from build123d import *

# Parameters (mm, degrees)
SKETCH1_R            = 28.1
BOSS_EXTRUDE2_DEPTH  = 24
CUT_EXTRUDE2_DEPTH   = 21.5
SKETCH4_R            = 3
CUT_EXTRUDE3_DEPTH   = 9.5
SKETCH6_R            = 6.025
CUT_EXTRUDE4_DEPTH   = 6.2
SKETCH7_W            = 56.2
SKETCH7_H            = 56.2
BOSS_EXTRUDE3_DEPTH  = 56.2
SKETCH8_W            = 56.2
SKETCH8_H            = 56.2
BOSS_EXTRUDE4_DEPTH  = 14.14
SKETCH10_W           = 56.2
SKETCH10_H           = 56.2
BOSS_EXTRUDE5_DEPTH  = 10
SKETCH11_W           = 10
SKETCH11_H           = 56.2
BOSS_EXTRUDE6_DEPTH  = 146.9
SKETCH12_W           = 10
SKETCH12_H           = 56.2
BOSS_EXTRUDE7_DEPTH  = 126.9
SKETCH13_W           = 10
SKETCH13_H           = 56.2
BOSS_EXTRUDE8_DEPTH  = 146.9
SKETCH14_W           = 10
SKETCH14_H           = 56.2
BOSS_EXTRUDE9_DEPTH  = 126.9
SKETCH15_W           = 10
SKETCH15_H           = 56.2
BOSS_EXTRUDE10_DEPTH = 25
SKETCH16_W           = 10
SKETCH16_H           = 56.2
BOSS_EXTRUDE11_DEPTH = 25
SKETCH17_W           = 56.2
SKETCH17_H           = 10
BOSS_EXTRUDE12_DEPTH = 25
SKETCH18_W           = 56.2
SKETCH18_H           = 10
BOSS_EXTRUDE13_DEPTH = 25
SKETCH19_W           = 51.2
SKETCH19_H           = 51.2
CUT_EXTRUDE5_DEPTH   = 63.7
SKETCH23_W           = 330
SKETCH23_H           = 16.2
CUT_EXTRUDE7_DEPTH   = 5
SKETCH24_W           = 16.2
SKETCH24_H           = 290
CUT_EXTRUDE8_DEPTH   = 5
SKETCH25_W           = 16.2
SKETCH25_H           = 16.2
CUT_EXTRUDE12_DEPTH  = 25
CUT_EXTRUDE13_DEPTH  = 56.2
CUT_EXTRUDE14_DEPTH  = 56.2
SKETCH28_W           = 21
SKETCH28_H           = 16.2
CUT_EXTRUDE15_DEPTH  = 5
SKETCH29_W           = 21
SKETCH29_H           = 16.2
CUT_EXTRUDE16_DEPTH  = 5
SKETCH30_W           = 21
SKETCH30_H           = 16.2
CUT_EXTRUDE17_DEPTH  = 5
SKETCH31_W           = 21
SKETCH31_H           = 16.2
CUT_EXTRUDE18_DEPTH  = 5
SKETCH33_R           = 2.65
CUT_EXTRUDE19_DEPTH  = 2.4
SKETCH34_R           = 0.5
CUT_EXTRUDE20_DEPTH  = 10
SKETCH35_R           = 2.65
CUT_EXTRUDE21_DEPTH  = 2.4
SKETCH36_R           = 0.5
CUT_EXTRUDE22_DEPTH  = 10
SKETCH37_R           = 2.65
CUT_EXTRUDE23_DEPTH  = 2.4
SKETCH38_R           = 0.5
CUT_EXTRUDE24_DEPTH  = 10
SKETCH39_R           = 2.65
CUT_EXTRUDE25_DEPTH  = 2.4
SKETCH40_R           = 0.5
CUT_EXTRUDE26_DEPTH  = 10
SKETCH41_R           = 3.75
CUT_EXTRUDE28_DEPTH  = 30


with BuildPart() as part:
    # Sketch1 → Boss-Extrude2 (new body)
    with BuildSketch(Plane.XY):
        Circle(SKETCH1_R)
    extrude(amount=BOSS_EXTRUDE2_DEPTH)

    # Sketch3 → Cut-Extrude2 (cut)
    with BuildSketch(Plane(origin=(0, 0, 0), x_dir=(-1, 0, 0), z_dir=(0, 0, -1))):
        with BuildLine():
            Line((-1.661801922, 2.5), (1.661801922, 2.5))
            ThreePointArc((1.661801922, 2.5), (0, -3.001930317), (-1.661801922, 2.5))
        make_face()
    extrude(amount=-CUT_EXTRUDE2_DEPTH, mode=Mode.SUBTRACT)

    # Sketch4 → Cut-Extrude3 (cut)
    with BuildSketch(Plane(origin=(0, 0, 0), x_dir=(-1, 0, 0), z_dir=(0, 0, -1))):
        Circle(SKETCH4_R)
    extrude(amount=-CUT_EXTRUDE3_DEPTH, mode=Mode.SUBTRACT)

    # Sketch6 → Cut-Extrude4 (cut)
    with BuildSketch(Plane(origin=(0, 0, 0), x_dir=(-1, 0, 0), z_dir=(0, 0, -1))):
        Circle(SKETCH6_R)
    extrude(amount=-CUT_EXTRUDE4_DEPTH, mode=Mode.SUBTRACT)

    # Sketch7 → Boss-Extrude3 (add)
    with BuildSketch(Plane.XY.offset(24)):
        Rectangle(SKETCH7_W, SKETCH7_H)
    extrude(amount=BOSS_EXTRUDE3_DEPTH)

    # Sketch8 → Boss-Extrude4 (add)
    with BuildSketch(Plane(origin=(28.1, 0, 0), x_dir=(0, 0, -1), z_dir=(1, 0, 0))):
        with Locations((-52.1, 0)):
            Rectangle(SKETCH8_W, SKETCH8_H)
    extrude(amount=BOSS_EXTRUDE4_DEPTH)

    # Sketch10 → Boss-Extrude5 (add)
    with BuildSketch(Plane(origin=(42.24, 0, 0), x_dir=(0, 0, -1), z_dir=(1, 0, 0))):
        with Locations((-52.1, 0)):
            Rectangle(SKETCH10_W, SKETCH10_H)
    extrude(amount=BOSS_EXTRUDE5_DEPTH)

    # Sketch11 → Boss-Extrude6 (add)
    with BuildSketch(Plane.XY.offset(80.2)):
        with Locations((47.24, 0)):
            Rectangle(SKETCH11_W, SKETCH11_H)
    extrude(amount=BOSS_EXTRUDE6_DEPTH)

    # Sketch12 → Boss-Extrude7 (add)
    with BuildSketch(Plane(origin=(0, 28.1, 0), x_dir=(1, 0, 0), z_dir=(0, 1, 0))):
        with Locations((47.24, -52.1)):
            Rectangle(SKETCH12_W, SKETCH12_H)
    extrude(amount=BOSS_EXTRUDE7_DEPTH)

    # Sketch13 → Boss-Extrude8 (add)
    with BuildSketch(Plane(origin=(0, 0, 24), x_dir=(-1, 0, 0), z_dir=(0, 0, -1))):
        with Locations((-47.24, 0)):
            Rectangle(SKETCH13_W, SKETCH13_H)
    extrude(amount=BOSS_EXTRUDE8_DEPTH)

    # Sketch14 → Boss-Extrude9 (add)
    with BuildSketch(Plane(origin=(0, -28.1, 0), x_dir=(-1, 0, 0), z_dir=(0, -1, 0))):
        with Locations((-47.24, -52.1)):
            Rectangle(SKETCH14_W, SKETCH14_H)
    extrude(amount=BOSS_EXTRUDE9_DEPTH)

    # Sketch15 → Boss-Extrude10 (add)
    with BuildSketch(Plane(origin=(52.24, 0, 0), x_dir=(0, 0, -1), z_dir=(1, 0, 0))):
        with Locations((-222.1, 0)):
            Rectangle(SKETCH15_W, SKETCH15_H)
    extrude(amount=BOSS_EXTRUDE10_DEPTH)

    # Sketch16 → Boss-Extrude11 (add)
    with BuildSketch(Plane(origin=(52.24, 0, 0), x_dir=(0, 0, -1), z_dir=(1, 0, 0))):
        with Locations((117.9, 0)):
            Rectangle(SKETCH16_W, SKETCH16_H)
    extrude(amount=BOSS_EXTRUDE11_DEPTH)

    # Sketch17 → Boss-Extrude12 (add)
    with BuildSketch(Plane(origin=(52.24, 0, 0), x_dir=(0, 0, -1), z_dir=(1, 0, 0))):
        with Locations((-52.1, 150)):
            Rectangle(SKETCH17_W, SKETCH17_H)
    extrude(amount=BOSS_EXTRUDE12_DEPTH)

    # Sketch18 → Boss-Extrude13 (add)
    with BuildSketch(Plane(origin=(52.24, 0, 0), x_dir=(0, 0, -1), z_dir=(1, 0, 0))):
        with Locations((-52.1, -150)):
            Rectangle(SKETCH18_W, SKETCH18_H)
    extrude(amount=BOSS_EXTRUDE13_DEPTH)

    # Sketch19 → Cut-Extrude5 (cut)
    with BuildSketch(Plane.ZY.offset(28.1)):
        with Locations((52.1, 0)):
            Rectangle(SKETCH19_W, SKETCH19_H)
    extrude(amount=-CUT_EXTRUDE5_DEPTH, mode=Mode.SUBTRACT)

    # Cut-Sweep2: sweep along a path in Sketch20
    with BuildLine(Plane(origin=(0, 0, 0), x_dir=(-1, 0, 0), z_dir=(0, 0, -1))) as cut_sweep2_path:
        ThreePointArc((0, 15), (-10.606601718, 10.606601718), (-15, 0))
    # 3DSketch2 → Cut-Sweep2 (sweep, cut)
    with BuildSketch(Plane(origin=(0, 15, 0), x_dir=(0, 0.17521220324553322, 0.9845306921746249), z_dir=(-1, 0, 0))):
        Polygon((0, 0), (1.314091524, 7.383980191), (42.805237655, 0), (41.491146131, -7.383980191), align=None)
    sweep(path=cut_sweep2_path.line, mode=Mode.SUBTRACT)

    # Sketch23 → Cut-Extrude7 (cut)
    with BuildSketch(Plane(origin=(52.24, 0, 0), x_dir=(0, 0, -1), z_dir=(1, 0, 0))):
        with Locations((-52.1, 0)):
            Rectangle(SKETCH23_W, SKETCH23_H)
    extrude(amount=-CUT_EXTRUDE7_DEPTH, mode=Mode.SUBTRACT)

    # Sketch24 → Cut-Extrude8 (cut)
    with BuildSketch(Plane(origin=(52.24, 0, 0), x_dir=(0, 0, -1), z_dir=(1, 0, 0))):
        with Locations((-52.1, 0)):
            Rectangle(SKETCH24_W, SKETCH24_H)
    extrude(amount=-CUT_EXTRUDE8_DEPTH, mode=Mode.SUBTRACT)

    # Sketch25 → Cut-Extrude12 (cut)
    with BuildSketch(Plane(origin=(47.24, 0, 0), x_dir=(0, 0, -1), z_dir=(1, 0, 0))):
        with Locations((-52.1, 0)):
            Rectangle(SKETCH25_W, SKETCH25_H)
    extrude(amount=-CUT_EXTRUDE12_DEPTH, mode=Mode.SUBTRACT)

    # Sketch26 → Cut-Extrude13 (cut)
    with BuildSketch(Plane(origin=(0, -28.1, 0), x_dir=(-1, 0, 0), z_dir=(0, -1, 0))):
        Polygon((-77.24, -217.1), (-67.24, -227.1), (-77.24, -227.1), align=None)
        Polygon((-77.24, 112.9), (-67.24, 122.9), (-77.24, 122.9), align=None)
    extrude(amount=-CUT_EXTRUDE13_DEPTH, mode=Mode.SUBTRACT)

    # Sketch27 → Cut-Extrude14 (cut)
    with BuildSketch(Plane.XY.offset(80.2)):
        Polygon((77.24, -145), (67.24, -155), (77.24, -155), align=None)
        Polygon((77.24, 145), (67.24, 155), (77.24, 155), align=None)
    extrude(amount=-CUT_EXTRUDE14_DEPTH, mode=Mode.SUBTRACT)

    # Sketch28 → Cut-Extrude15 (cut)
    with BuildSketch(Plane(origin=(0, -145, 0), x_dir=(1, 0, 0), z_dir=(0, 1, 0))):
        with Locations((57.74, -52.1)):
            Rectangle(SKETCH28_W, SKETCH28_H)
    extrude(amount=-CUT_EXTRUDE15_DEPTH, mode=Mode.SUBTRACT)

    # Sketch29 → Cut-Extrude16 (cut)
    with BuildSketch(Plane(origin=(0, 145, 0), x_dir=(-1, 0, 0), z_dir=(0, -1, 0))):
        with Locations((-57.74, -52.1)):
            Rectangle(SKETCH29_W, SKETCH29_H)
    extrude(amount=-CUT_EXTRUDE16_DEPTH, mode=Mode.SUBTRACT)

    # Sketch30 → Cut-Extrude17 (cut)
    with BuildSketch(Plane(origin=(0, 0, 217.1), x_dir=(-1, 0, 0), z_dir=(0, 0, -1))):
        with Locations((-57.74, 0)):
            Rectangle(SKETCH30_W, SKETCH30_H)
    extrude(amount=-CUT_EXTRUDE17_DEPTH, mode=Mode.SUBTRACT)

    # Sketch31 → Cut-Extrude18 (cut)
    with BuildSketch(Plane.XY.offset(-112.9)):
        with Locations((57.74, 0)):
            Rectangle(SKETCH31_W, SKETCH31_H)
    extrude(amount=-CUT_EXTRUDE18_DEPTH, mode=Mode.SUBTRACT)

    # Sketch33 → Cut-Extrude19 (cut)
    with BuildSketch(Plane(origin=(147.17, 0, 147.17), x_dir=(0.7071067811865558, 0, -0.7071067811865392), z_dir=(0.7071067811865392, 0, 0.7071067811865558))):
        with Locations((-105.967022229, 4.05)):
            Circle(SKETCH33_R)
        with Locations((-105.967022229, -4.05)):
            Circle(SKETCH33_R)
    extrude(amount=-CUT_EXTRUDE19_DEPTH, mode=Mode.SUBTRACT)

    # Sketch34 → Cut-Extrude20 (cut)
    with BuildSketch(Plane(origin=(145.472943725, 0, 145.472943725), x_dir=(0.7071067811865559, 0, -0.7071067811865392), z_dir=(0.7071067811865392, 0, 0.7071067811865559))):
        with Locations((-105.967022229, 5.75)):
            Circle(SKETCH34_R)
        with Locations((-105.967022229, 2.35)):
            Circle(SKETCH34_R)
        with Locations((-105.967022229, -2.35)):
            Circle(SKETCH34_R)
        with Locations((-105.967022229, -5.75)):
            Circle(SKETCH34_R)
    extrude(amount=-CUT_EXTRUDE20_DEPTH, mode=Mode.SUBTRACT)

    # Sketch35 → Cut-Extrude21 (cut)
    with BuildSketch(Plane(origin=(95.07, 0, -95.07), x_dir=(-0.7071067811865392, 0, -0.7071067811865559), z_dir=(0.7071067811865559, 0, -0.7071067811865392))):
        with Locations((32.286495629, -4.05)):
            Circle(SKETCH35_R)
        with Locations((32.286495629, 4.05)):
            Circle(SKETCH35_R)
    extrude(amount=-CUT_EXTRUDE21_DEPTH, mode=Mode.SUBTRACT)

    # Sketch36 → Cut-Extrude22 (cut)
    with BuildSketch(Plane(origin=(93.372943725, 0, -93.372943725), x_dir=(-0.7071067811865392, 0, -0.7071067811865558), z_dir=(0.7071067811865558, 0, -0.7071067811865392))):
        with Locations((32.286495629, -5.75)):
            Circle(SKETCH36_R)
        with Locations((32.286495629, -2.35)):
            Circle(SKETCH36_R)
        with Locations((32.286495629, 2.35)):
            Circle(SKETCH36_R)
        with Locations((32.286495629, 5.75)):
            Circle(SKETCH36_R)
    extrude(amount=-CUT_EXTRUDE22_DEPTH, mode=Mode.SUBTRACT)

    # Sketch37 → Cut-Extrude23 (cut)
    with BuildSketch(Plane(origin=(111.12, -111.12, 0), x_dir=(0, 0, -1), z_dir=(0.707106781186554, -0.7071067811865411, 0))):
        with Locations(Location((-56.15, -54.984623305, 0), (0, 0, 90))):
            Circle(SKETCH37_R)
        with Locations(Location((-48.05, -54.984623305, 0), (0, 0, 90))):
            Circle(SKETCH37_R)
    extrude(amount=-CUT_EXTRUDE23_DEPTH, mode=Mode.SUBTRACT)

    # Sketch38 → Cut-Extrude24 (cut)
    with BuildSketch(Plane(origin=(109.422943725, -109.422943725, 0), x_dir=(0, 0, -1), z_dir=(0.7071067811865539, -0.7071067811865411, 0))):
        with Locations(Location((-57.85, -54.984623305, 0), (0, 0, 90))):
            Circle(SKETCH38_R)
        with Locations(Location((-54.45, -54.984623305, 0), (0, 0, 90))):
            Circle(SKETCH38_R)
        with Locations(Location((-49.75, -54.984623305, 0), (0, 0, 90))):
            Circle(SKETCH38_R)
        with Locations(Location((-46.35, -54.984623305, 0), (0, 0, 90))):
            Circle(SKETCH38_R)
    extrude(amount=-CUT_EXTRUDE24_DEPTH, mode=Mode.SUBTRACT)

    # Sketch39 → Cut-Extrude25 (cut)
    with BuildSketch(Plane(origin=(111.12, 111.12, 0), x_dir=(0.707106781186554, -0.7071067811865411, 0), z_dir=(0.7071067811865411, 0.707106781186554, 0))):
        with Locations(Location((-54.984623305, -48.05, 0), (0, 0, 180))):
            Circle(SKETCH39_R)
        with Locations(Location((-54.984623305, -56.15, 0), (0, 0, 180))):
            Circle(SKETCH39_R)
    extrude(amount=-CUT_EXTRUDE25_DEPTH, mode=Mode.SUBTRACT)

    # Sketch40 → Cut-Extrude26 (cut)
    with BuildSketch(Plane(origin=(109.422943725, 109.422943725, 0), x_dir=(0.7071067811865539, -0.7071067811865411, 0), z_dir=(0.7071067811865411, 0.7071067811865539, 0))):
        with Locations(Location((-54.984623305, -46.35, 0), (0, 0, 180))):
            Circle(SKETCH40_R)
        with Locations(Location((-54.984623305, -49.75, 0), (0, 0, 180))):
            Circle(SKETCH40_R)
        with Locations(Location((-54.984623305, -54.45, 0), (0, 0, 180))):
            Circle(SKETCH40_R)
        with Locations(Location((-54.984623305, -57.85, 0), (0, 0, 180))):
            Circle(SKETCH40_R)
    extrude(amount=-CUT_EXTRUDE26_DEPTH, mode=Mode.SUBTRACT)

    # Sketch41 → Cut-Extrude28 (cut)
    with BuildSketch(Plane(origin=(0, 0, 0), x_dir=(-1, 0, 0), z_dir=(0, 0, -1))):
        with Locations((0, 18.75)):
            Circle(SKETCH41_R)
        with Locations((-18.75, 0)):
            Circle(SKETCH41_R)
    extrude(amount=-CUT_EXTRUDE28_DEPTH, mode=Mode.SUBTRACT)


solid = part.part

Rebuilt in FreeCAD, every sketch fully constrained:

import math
import FreeCAD as App
import Part
import Sketcher
from FreeCAD import Vector

doc = App.newDocument("Part")
body = doc.addObject("PartDesign::Body", "Body")

sketch1 = body.newObject("Sketcher::SketchObject", "Sketch")
sketch1.AttachmentSupport = (doc.getObject("XY_Plane"), [""])
sketch1.MapMode = "FlatFace"
sketch1.addGeometry(Part.Circle(Vector(0, 0, 0), Vector(0, 0, 1), 28), False)
sketch1.addConstraint([
    Sketcher.Constraint("Coincident", 0, 3, -1, 1),
    Sketcher.Constraint("Diameter", 0, 56.2),
])
pad1 = body.newObject("PartDesign::Pad", "Pad")
pad1.Profile = sketch1
pad1.Length = 24

sketch2 = body.newObject("Sketcher::SketchObject", "Sketch001")
sketch2.AttachmentSupport = (doc.getObject("XY_Plane"), [""])
sketch2.MapMode = "FlatFace"
sketch2.addGeometry([
    Part.LineSegment(Vector(-1.7, 2.5, 0), Vector(1.7, 2.5, 0)),
    Part.ArcOfCircle(Part.Circle(Vector(0, 0, 0), Vector(0, 0, 1), 3), math.radians(124), math.radians(416)),
], False)
sketch2.addConstraint([
    Sketcher.Constraint("Coincident", 0, 1, 1, 1),
    Sketcher.Constraint("Coincident", 1, 2, 0, 2),
    Sketcher.Constraint("Horizontal", 0),
    Sketcher.Constraint("Coincident", 1, 3, -1, 1),
    Sketcher.Constraint("DistanceY", -1, 1, 0, 1, 2.5),
    Sketcher.Constraint("Radius", 1, 3.00193),
])
pocket1 = body.newObject("PartDesign::Pocket", "Pocket")
pocket1.Profile = sketch2
pocket1.Length = 21.5
pocket1.Reversed = True

sketch3 = body.newObject("Sketcher::SketchObject", "Sketch002")
sketch3.AttachmentSupport = (doc.getObject("XY_Plane"), [""])
sketch3.MapMode = "FlatFace"
sketch3.addGeometry(Part.Circle(Vector(0, 0, 0), Vector(0, 0, 1), 3), False)
sketch3.addConstraint([
    Sketcher.Constraint("Coincident", 0, 3, -1, 1),
    Sketcher.Constraint("Diameter", 0, 6.0),
])
pocket2 = body.newObject("PartDesign::Pocket", "Pocket001")
pocket2.Profile = sketch3
pocket2.Length = 9.5
pocket2.Reversed = True

sketch4 = body.newObject("Sketcher::SketchObject", "Sketch003")
sketch4.AttachmentSupport = (doc.getObject("XY_Plane"), [""])
sketch4.MapMode = "FlatFace"
sketch4.addGeometry(Part.Circle(Vector(0, 0, 0), Vector(0, 0, 1), 6), False)
sketch4.addConstraint([
    Sketcher.Constraint("Coincident", 0, 3, -1, 1),
    Sketcher.Constraint("Diameter", 0, 12.05),
])
pocket3 = body.newObject("PartDesign::Pocket", "Pocket002")
pocket3.Profile = sketch4
pocket3.Length = 6.2
pocket3.Reversed = True

sketch5 = body.newObject("Sketcher::SketchObject", "Sketch004")
sketch5.AttachmentSupport = (doc.getObject("XY_Plane"), [""])
sketch5.MapMode = "FlatFace"
sketch5.AttachmentOffset = App.Placement(Vector(0, 0, 24), App.Rotation())
sketch5.addGeometry([
    Part.LineSegment(Vector(-28, 28, 0), Vector(-28, -28, 0)),
    Part.LineSegment(Vector(-28, -28, 0), Vector(28, -28, 0)),
    Part.LineSegment(Vector(28, -28, 0), Vector(28, 28, 0)),
    Part.LineSegment(Vector(28, 28, 0), Vector(-28, 28, 0)),
], False)
sketch5.addConstraint([
    Sketcher.Constraint("Coincident", 0, 2, 1, 1),
    Sketcher.Constraint("Coincident", 1, 2, 2, 1),
    Sketcher.Constraint("Coincident", 2, 2, 3, 1),
    Sketcher.Constraint("Coincident", 3, 2, 0, 1),
    Sketcher.Constraint("Vertical", 0),
    Sketcher.Constraint("Horizontal", 1),
    Sketcher.Constraint("Vertical", 2),
    Sketcher.Constraint("Horizontal", 3),
    Sketcher.Constraint("Symmetric", 0, 2, 2, 2, -1, 1),
    Sketcher.Constraint("Equal", 3, 0),
    Sketcher.Constraint("DistanceX", 1, 1, 1, 2, 56.2),
])
pad2 = body.newObject("PartDesign::Pad", "Pad001")
pad2.Profile = sketch5
pad2.Length = 56.2

sketch6 = body.newObject("Sketcher::SketchObject", "Sketch005")
sketch6.AttachmentSupport = (doc.getObject("YZ_Plane"), [""])
sketch6.MapMode = "FlatFace"
sketch6.AttachmentOffset = App.Placement(Vector(0, 0, 28.1), App.Rotation())
sketch6.addGeometry([
    Part.LineSegment(Vector(28, 80, 0), Vector(-28, 80, 0)),
    Part.LineSegment(Vector(-28, 80, 0), Vector(-28, 24, 0)),
    Part.LineSegment(Vector(-28, 24, 0), Vector(28, 24, 0)),
    Part.LineSegment(Vector(28, 24, 0), Vector(28, 80, 0)),
], False)
sketch6.addConstraint([
    Sketcher.Constraint("Coincident", 0, 2, 1, 1),
    Sketcher.Constraint("Coincident", 1, 2, 2, 1),
    Sketcher.Constraint("Coincident", 2, 2, 3, 1),
    Sketcher.Constraint("Coincident", 3, 2, 0, 1),
    Sketcher.Constraint("Horizontal", 0),
    Sketcher.Constraint("Vertical", 1),
    Sketcher.Constraint("Horizontal", 2),
    Sketcher.Constraint("Vertical", 3),
    Sketcher.Constraint("Equal", 2, 1),
    Sketcher.Constraint("DistanceX", 0, 2, 0, 1, 56.2),
    Sketcher.Constraint("DistanceY", -1, 1, 1, 2, 24.0),
    Sketcher.Constraint("DistanceX", 0, 2, -1, 1, 28.1),
])
pad3 = body.newObject("PartDesign::Pad", "Pad002")
pad3.Profile = sketch6
pad3.Length = 14.14

sketch7 = body.newObject("Sketcher::SketchObject", "Sketch006")
sketch7.AttachmentSupport = (doc.getObject("YZ_Plane"), [""])
sketch7.MapMode = "FlatFace"
sketch7.AttachmentOffset = App.Placement(Vector(0, 0, 42.24), App.Rotation())
sketch7.addGeometry([
    Part.LineSegment(Vector(28, 80, 0), Vector(-28, 80, 0)),
    Part.LineSegment(Vector(-28, 80, 0), Vector(-28, 24, 0)),
    Part.LineSegment(Vector(-28, 24, 0), Vector(28, 24, 0)),
    Part.LineSegment(Vector(28, 24, 0), Vector(28, 80, 0)),
], False)
sketch7.addConstraint([
    Sketcher.Constraint("Coincident", 0, 2, 1, 1),
    Sketcher.Constraint("Coincident", 1, 2, 2, 1),
    Sketcher.Constraint("Coincident", 2, 2, 3, 1),
    Sketcher.Constraint("Coincident", 3, 2, 0, 1),
    Sketcher.Constraint("Horizontal", 0),
    Sketcher.Constraint("Vertical", 1),
    Sketcher.Constraint("Horizontal", 2),
    Sketcher.Constraint("Vertical", 3),
    Sketcher.Constraint("Equal", 2, 1),
    Sketcher.Constraint("DistanceX", 0, 2, 0, 1, 56.2),
    Sketcher.Constraint("DistanceY", -1, 1, 1, 2, 24.0),
    Sketcher.Constraint("DistanceX", 0, 2, -1, 1, 28.1),
])
pad4 = body.newObject("PartDesign::Pad", "Pad003")
pad4.Profile = sketch7
pad4.Length = 10

sketch8 = body.newObject("Sketcher::SketchObject", "Sketch007")
sketch8.AttachmentSupport = (doc.getObject("XY_Plane"), [""])
sketch8.MapMode = "FlatFace"
sketch8.AttachmentOffset = App.Placement(Vector(0, 0, 80.2), App.Rotation())
sketch8.addGeometry([
    Part.LineSegment(Vector(42, 28, 0), Vector(42, -28, 0)),
    Part.LineSegment(Vector(42, -28, 0), Vector(52, -28, 0)),
    Part.LineSegment(Vector(52, -28, 0), Vector(52, 28, 0)),
    Part.LineSegment(Vector(52, 28, 0), Vector(42, 28, 0)),
], False)
sketch8.addConstraint([
    Sketcher.Constraint("Coincident", 0, 2, 1, 1),
    Sketcher.Constraint("Coincident", 1, 2, 2, 1),
    Sketcher.Constraint("Coincident", 2, 2, 3, 1),
    Sketcher.Constraint("Coincident", 3, 2, 0, 1),
    Sketcher.Constraint("Vertical", 0),
    Sketcher.Constraint("Horizontal", 1),
    Sketcher.Constraint("Vertical", 2),
    Sketcher.Constraint("Horizontal", 3),
    Sketcher.Constraint("DistanceX", 1, 1, 1, 2, 10.0),
    Sketcher.Constraint("DistanceY", 0, 2, 0, 1, 56.2),
    Sketcher.Constraint("DistanceY", 0, 2, -1, 1, 28.1),
    Sketcher.Constraint("DistanceX", -1, 1, 0, 2, 42.24),
])
pad5 = body.newObject("PartDesign::Pad", "Pad004")
pad5.Profile = sketch8
pad5.Length = 146.9

sketch9 = body.newObject("Sketcher::SketchObject", "Sketch008")
sketch9.AttachmentSupport = (doc.getObject("XZ_Plane"), [""])
sketch9.MapMode = "FlatFace"
sketch9.AttachmentOffset = App.Placement(Vector(0, 0, -28.1), App.Rotation())
sketch9.addGeometry([
    Part.LineSegment(Vector(42, 24, 0), Vector(42, 80, 0)),
    Part.LineSegment(Vector(42, 80, 0), Vector(52, 80, 0)),
    Part.LineSegment(Vector(52, 80, 0), Vector(52, 24, 0)),
    Part.LineSegment(Vector(52, 24, 0), Vector(42, 24, 0)),
], False)
sketch9.addConstraint([
    Sketcher.Constraint("Coincident", 0, 2, 1, 1),
    Sketcher.Constraint("Coincident", 1, 2, 2, 1),
    Sketcher.Constraint("Coincident", 2, 2, 3, 1),
    Sketcher.Constraint("Coincident", 3, 2, 0, 1),
    Sketcher.Constraint("Vertical", 0),
    Sketcher.Constraint("Horizontal", 1),
    Sketcher.Constraint("Vertical", 2),
    Sketcher.Constraint("Horizontal", 3),
    Sketcher.Constraint("DistanceX", 1, 1, 1, 2, 10.0),
    Sketcher.Constraint("DistanceY", 0, 1, 0, 2, 56.2),
    Sketcher.Constraint("DistanceY", -1, 1, 2, 2, 24.0),
    Sketcher.Constraint("DistanceX", -1, 1, 0, 2, 42.24),
])
pad6 = body.newObject("PartDesign::Pad", "Pad005")
pad6.Profile = sketch9
pad6.Length = 126.9
pad6.Reversed = True

sketch10 = body.newObject("Sketcher::SketchObject", "Sketch009")
sketch10.AttachmentSupport = (doc.getObject("XY_Plane"), [""])
sketch10.MapMode = "FlatFace"
sketch10.AttachmentOffset = App.Placement(Vector(0, 0, 24), App.Rotation())
sketch10.addGeometry([
    Part.LineSegment(Vector(52, 28, 0), Vector(52, -28, 0)),
    Part.LineSegment(Vector(52, -28, 0), Vector(42, -28, 0)),
    Part.LineSegment(Vector(42, -28, 0), Vector(42, 28, 0)),
    Part.LineSegment(Vector(42, 28, 0), Vector(52, 28, 0)),
], False)
sketch10.addConstraint([
    Sketcher.Constraint("Coincident", 0, 2, 1, 1),
    Sketcher.Constraint("Coincident", 1, 2, 2, 1),
    Sketcher.Constraint("Coincident", 2, 2, 3, 1),
    Sketcher.Constraint("Coincident", 3, 2, 0, 1),
    Sketcher.Constraint("Vertical", 0),
    Sketcher.Constraint("Horizontal", 1),
    Sketcher.Constraint("Vertical", 2),
    Sketcher.Constraint("Horizontal", 3),
    Sketcher.Constraint("DistanceX", 1, 2, 1, 1, 10.0),
    Sketcher.Constraint("DistanceY", 0, 2, 0, 1, 56.2),
    Sketcher.Constraint("DistanceY", 0, 2, -1, 1, 28.1),
    Sketcher.Constraint("DistanceX", -1, 1, 0, 2, 52.24),
])
pad7 = body.newObject("PartDesign::Pad", "Pad006")
pad7.Profile = sketch10
pad7.Length = 146.9
pad7.Reversed = True

sketch11 = body.newObject("Sketcher::SketchObject", "Sketch010")
sketch11.AttachmentSupport = (doc.getObject("XZ_Plane"), [""])
sketch11.MapMode = "FlatFace"
sketch11.AttachmentOffset = App.Placement(Vector(0, 0, 28.1), App.Rotation())
sketch11.addGeometry([
    Part.LineSegment(Vector(52, 24, 0), Vector(52, 80, 0)),
    Part.LineSegment(Vector(52, 80, 0), Vector(42, 80, 0)),
    Part.LineSegment(Vector(42, 80, 0), Vector(42, 24, 0)),
    Part.LineSegment(Vector(42, 24, 0), Vector(52, 24, 0)),
], False)
sketch11.addConstraint([
    Sketcher.Constraint("Coincident", 0, 2, 1, 1),
    Sketcher.Constraint("Coincident", 1, 2, 2, 1),
    Sketcher.Constraint("Coincident", 2, 2, 3, 1),
    Sketcher.Constraint("Coincident", 3, 2, 0, 1),
    Sketcher.Constraint("Vertical", 0),
    Sketcher.Constraint("Horizontal", 1),
    Sketcher.Constraint("Vertical", 2),
    Sketcher.Constraint("Horizontal", 3),
    Sketcher.Constraint("DistanceX", 1, 2, 1, 1, 10.0),
    Sketcher.Constraint("DistanceY", 0, 1, 0, 2, 56.2),
    Sketcher.Constraint("DistanceY", -1, 1, 2, 2, 24.0),
    Sketcher.Constraint("DistanceX", -1, 1, 0, 2, 52.24),
])
pad8 = body.newObject("PartDesign::Pad", "Pad007")
pad8.Profile = sketch11
pad8.Length = 126.9

sketch12 = body.newObject("Sketcher::SketchObject", "Sketch011")
sketch12.AttachmentSupport = (doc.getObject("YZ_Plane"), [""])
sketch12.MapMode = "FlatFace"
sketch12.AttachmentOffset = App.Placement(Vector(0, 0, 52.24), App.Rotation())
sketch12.addGeometry([
    Part.LineSegment(Vector(28, 227, 0), Vector(-28, 227, 0)),
    Part.LineSegment(Vector(-28, 227, 0), Vector(-28, 217, 0)),
    Part.LineSegment(Vector(-28, 217, 0), Vector(28, 217, 0)),
    Part.LineSegment(Vector(28, 217, 0), Vector(28, 227, 0)),
], False)
sketch12.addConstraint([
    Sketcher.Constraint("Coincident", 0, 2, 1, 1),
    Sketcher.Constraint("Coincident", 1, 2, 2, 1),
    Sketcher.Constraint("Coincident", 2, 2, 3, 1),
    Sketcher.Constraint("Coincident", 3, 2, 0, 1),
    Sketcher.Constraint("Horizontal", 0),
    Sketcher.Constraint("Vertical", 1),
    Sketcher.Constraint("Horizontal", 2),
    Sketcher.Constraint("Vertical", 3),
    Sketcher.Constraint("DistanceY", 1, 2, 1, 1, 10.0),
    Sketcher.Constraint("DistanceX", 0, 2, 0, 1, 56.2),
    Sketcher.Constraint("DistanceX", 0, 2, -1, 1, 28.1),
    Sketcher.Constraint("DistanceY", -1, 1, 0, 2, 227.1),
])
pad9 = body.newObject("PartDesign::Pad", "Pad008")
pad9.Profile = sketch12
pad9.Length = 25

sketch13 = body.newObject("Sketcher::SketchObject", "Sketch012")
sketch13.AttachmentSupport = (doc.getObject("YZ_Plane"), [""])
sketch13.MapMode = "FlatFace"
sketch13.AttachmentOffset = App.Placement(Vector(0, 0, 52.24), App.Rotation())
sketch13.addGeometry([
    Part.LineSegment(Vector(28, -113, 0), Vector(-28, -113, 0)),
    Part.LineSegment(Vector(-28, -113, 0), Vector(-28, -123, 0)),
    Part.LineSegment(Vector(-28, -123, 0), Vector(28, -123, 0)),
    Part.LineSegment(Vector(28, -123, 0), Vector(28, -113, 0)),
], False)
sketch13.addConstraint([
    Sketcher.Constraint("Coincident", 0, 2, 1, 1),
    Sketcher.Constraint("Coincident", 1, 2, 2, 1),
    Sketcher.Constraint("Coincident", 2, 2, 3, 1),
    Sketcher.Constraint("Coincident", 3, 2, 0, 1),
    Sketcher.Constraint("Horizontal", 0),
    Sketcher.Constraint("Vertical", 1),
    Sketcher.Constraint("Horizontal", 2),
    Sketcher.Constraint("Vertical", 3),
    Sketcher.Constraint("DistanceY", 1, 2, 1, 1, 10.0),
    Sketcher.Constraint("DistanceX", 0, 2, 0, 1, 56.2),
    Sketcher.Constraint("DistanceX", 0, 2, -1, 1, 28.1),
    Sketcher.Constraint("DistanceY", 0, 2, -1, 1, 112.9),
])
pad10 = body.newObject("PartDesign::Pad", "Pad009")
pad10.Profile = sketch13
pad10.Length = 25

sketch14 = body.newObject("Sketcher::SketchObject", "Sketch013")
sketch14.AttachmentSupport = (doc.getObject("YZ_Plane"), [""])
sketch14.MapMode = "FlatFace"
sketch14.AttachmentOffset = App.Placement(Vector(0, 0, 52.24), App.Rotation())
sketch14.addGeometry([
    Part.LineSegment(Vector(155, 80, 0), Vector(145, 80, 0)),
    Part.LineSegment(Vector(145, 80, 0), Vector(145, 24, 0)),
    Part.LineSegment(Vector(145, 24, 0), Vector(155, 24, 0)),
    Part.LineSegment(Vector(155, 24, 0), Vector(155, 80, 0)),
], False)
sketch14.addConstraint([
    Sketcher.Constraint("Coincident", 0, 2, 1, 1),
    Sketcher.Constraint("Coincident", 1, 2, 2, 1),
    Sketcher.Constraint("Coincident", 2, 2, 3, 1),
    Sketcher.Constraint("Coincident", 3, 2, 0, 1),
    Sketcher.Constraint("Horizontal", 0),
    Sketcher.Constraint("Vertical", 1),
    Sketcher.Constraint("Horizontal", 2),
    Sketcher.Constraint("Vertical", 3),
    Sketcher.Constraint("DistanceX", 0, 2, 0, 1, 10.0),
    Sketcher.Constraint("DistanceY", 1, 2, 1, 1, 56.2),
    Sketcher.Constraint("DistanceX", -1, 1, 0, 2, 145.0),
    Sketcher.Constraint("DistanceY", -1, 1, 1, 2, 24.0),
])
pad11 = body.newObject("PartDesign::Pad", "Pad010")
pad11.Profile = sketch14
pad11.Length = 25

sketch15 = body.newObject("Sketcher::SketchObject", "Sketch014")
sketch15.AttachmentSupport = (doc.getObject("YZ_Plane"), [""])
sketch15.MapMode = "FlatFace"
sketch15.AttachmentOffset = App.Placement(Vector(0, 0, 52.24), App.Rotation())
sketch15.addGeometry([
    Part.LineSegment(Vector(-145, 80, 0), Vector(-155, 80, 0)),
    Part.LineSegment(Vector(-155, 80, 0), Vector(-155, 24, 0)),
    Part.LineSegment(Vector(-155, 24, 0), Vector(-145, 24, 0)),
    Part.LineSegment(Vector(-145, 24, 0), Vector(-145, 80, 0)),
], False)
sketch15.addConstraint([
    Sketcher.Constraint("Coincident", 0, 2, 1, 1),
    Sketcher.Constraint("Coincident", 1, 2, 2, 1),
    Sketcher.Constraint("Coincident", 2, 2, 3, 1),
    Sketcher.Constraint("Coincident", 3, 2, 0, 1),
    Sketcher.Constraint("Horizontal", 0),
    Sketcher.Constraint("Vertical", 1),
    Sketcher.Constraint("Horizontal", 2),
    Sketcher.Constraint("Vertical", 3),
    Sketcher.Constraint("DistanceX", 0, 2, 0, 1, 10.0),
    Sketcher.Constraint("DistanceY", 1, 2, 1, 1, 56.2),
    Sketcher.Constraint("DistanceX", 0, 2, -1, 1, 155.0),
    Sketcher.Constraint("DistanceY", -1, 1, 1, 2, 24.0),
])
pad12 = body.newObject("PartDesign::Pad", "Pad011")
pad12.Profile = sketch15
pad12.Length = 25

sketch16 = body.newObject("Sketcher::SketchObject", "Sketch015")
sketch16.AttachmentSupport = (doc.getObject("YZ_Plane"), [""])
sketch16.MapMode = "FlatFace"
sketch16.AttachmentOffset = App.Placement(Vector(0, 0, -28.1), App.Rotation())
sketch16.addGeometry([
    Part.LineSegment(Vector(26, 26, 0), Vector(-26, 26, 0)),
    Part.LineSegment(Vector(-26, 26, 0), Vector(-26, 78, 0)),
    Part.LineSegment(Vector(-26, 78, 0), Vector(26, 78, 0)),
    Part.LineSegment(Vector(26, 78, 0), Vector(26, 26, 0)),
], False)
sketch16.addConstraint([
    Sketcher.Constraint("Coincident", 0, 2, 1, 1),
    Sketcher.Constraint("Coincident", 1, 2, 2, 1),
    Sketcher.Constraint("Coincident", 2, 2, 3, 1),
    Sketcher.Constraint("Coincident", 3, 2, 0, 1),
    Sketcher.Constraint("Horizontal", 0),
    Sketcher.Constraint("Vertical", 1),
    Sketcher.Constraint("Horizontal", 2),
    Sketcher.Constraint("Vertical", 3),
    Sketcher.Constraint("Equal", 2, 1),
    Sketcher.Constraint("DistanceX", 0, 2, 0, 1, 51.2),
    Sketcher.Constraint("DistanceX", 0, 2, -1, 1, 25.6),
    Sketcher.Constraint("DistanceY", -1, 1, 0, 2, 26.5),
])
pocket4 = body.newObject("PartDesign::Pocket", "Pocket003")
pocket4.Profile = sketch16
pocket4.Length = 63.7
pocket4.Reversed = True

sketch17 = body.newObject("Sketcher::SketchObject", "Sketch016")
sketch17.AttachmentSupport = (doc.getObject("YZ_Plane"), [""])
sketch17.MapMode = "FlatFace"
sketch17.addGeometry([
    Part.LineSegment(Vector(22, 0, 0), Vector(15, 0, 0)),
    Part.LineSegment(Vector(15, 0, 0), Vector(15, 42, 0)),
    Part.LineSegment(Vector(15, 42, 0), Vector(22, 42, 0)),
    Part.LineSegment(Vector(22, 42, 0), Vector(22, 0, 0)),
], False)
sketch17.addConstraint([
    Sketcher.Constraint("Coincident", 0, 2, 1, 1),
    Sketcher.Constraint("Coincident", 1, 2, 2, 1),
    Sketcher.Constraint("Coincident", 2, 2, 3, 1),
    Sketcher.Constraint("Coincident", 3, 2, 0, 1),
    Sketcher.Constraint("Horizontal", 0),
    Sketcher.Constraint("Vertical", 1),
    Sketcher.Constraint("Horizontal", 2),
    Sketcher.Constraint("Vertical", 3),
    Sketcher.Constraint("PointOnObject", 0, 2, -1),
    Sketcher.Constraint("DistanceX", 0, 2, 0, 1, 7.5),
    Sketcher.Constraint("DistanceX", -1, 1, 0, 2, 15.0),
    Sketcher.Constraint("DistanceY", 1, 1, 1, 2, 42.14307),
])

sketch18 = body.newObject("Sketcher::SketchObject", "Sketch017")
sketch18.AttachmentSupport = (doc.getObject("XY_Plane"), [""])
sketch18.MapMode = "FlatFace"
sketch18.addGeometry(Part.ArcOfCircle(Part.Circle(Vector(0, 0, 0), Vector(0, 0, 1), 15), math.radians(0), math.radians(90)), False)
sketch18.addConstraint([
    Sketcher.Constraint("Coincident", 0, 3, -1, 1),
    Sketcher.Constraint("PointOnObject", 0, 1, -1),
    Sketcher.Constraint("PointOnObject", 0, 2, -2),
    Sketcher.Constraint("Radius", 0, 15.0),
])
doc.recompute()

subtractivepipe = body.newObject("PartDesign::SubtractivePipe", "SubtractivePipe")
subtractivepipe.Profile = sketch17
subtractivepipe.Spine = (sketch18, ["Edge1"])

sketch19 = body.newObject("Sketcher::SketchObject", "Sketch018")
sketch19.AttachmentSupport = (doc.getObject("YZ_Plane"), [""])
sketch19.MapMode = "FlatFace"
sketch19.AttachmentOffset = App.Placement(Vector(0, 0, 52.24), App.Rotation())
sketch19.addGeometry([
    Part.LineSegment(Vector(8, 217, 0), Vector(-8, 217, 0)),
    Part.LineSegment(Vector(-8, 217, 0), Vector(-8, -113, 0)),
    Part.LineSegment(Vector(-8, -113, 0), Vector(8, -113, 0)),
    Part.LineSegment(Vector(8, -113, 0), Vector(8, 217, 0)),
], False)
sketch19.addConstraint([
    Sketcher.Constraint("Coincident", 0, 2, 1, 1),
    Sketcher.Constraint("Coincident", 1, 2, 2, 1),
    Sketcher.Constraint("Coincident", 2, 2, 3, 1),
    Sketcher.Constraint("Coincident", 3, 2, 0, 1),
    Sketcher.Constraint("Horizontal", 0),
    Sketcher.Constraint("Vertical", 1),
    Sketcher.Constraint("Horizontal", 2),
    Sketcher.Constraint("Vertical", 3),
    Sketcher.Constraint("DistanceY", 1, 2, 1, 1, 330.0),
    Sketcher.Constraint("DistanceX", 0, 2, 0, 1, 16.2),
    Sketcher.Constraint("DistanceX", 0, 2, -1, 1, 8.1),
    Sketcher.Constraint("DistanceY", -1, 1, 0, 2, 217.1),
])
pocket5 = body.newObject("PartDesign::Pocket", "Pocket004")
pocket5.Profile = sketch19
pocket5.Length = 5

sketch20 = body.newObject("Sketcher::SketchObject", "Sketch019")
sketch20.AttachmentSupport = (doc.getObject("YZ_Plane"), [""])
sketch20.MapMode = "FlatFace"
sketch20.AttachmentOffset = App.Placement(Vector(0, 0, 52.24), App.Rotation())
sketch20.addGeometry([
    Part.LineSegment(Vector(145, 60, 0), Vector(-145, 60, 0)),
    Part.LineSegment(Vector(-145, 60, 0), Vector(-145, 44, 0)),
    Part.LineSegment(Vector(-145, 44, 0), Vector(145, 44, 0)),
    Part.LineSegment(Vector(145, 44, 0), Vector(145, 60, 0)),
], False)
sketch20.addConstraint([
    Sketcher.Constraint("Coincident", 0, 2, 1, 1),
    Sketcher.Constraint("Coincident", 1, 2, 2, 1),
    Sketcher.Constraint("Coincident", 2, 2, 3, 1),
    Sketcher.Constraint("Coincident", 3, 2, 0, 1),
    Sketcher.Constraint("Horizontal", 0),
    Sketcher.Constraint("Vertical", 1),
    Sketcher.Constraint("Horizontal", 2),
    Sketcher.Constraint("Vertical", 3),
    Sketcher.Constraint("DistanceX", 0, 2, 0, 1, 290.0),
    Sketcher.Constraint("DistanceY", 1, 2, 1, 1, 16.2),
    Sketcher.Constraint("DistanceX", 0, 2, -1, 1, 145.0),
    Sketcher.Constraint("DistanceY", -1, 1, 1, 2, 44.0),
])
pocket6 = body.newObject("PartDesign::Pocket", "Pocket005")
pocket6.Profile = sketch20
pocket6.Length = 5

sketch21 = body.newObject("Sketcher::SketchObject", "Sketch020")
sketch21.AttachmentSupport = (doc.getObject("YZ_Plane"), [""])
sketch21.MapMode = "FlatFace"
sketch21.AttachmentOffset = App.Placement(Vector(0, 0, 47.24), App.Rotation())
sketch21.addGeometry([
    Part.LineSegment(Vector(8, 60, 0), Vector(-8, 60, 0)),
    Part.LineSegment(Vector(-8, 60, 0), Vector(-8, 44, 0)),
    Part.LineSegment(Vector(-8, 44, 0), Vector(8, 44, 0)),
    Part.LineSegment(Vector(8, 44, 0), Vector(8, 60, 0)),
], False)
sketch21.addConstraint([
    Sketcher.Constraint("Coincident", 0, 2, 1, 1),
    Sketcher.Constraint("Coincident", 1, 2, 2, 1),
    Sketcher.Constraint("Coincident", 2, 2, 3, 1),
    Sketcher.Constraint("Coincident", 3, 2, 0, 1),
    Sketcher.Constraint("Horizontal", 0),
    Sketcher.Constraint("Vertical", 1),
    Sketcher.Constraint("Horizontal", 2),
    Sketcher.Constraint("Vertical", 3),
    Sketcher.Constraint("Equal", 2, 1),
    Sketcher.Constraint("DistanceX", 0, 2, 0, 1, 16.2),
    Sketcher.Constraint("DistanceY", -1, 1, 1, 2, 44.0),
    Sketcher.Constraint("DistanceX", 0, 2, -1, 1, 8.1),
])
pocket7 = body.newObject("PartDesign::Pocket", "Pocket006")
pocket7.Profile = sketch21
pocket7.Length = 25

sketch22 = body.newObject("Sketcher::SketchObject", "Sketch021")
sketch22.AttachmentSupport = (doc.getObject("XZ_Plane"), [""])
sketch22.MapMode = "FlatFace"
sketch22.AttachmentOffset = App.Placement(Vector(0, 0, 28.1), App.Rotation())
sketch22.addGeometry([
    Part.LineSegment(Vector(67, 227, 0), Vector(77, 217, 0)),
    Part.LineSegment(Vector(77, 217, 0), Vector(77, 227, 0)),
    Part.LineSegment(Vector(77, 227, 0), Vector(67, 227, 0)),
    Part.LineSegment(Vector(77, -113, 0), Vector(67, -123, 0)),
    Part.LineSegment(Vector(67, -123, 0), Vector(77, -123, 0)),
    Part.LineSegment(Vector(77, -123, 0), Vector(77, -113, 0)),
], False)
sketch22.addConstraint([
    Sketcher.Constraint("Coincident", 0, 2, 1, 1),
    Sketcher.Constraint("Coincident", 1, 2, 2, 1),
    Sketcher.Constraint("Coincident", 2, 2, 0, 1),
    Sketcher.Constraint("Coincident", 3, 2, 4, 1),
    Sketcher.Constraint("Coincident", 4, 2, 5, 1),
    Sketcher.Constraint("Coincident", 5, 2, 3, 1),
    Sketcher.Constraint("Vertical", 1),
    Sketcher.Constraint("Horizontal", 2),
    Sketcher.Constraint("Horizontal", 4),
    Sketcher.Constraint("Vertical", 5),
    Sketcher.Constraint("Perpendicular", 0, 3),
    Sketcher.Constraint("Vertical", 2, 2, 3, 2),
    Sketcher.Constraint("Vertical", 1, 2, 4, 2),
    Sketcher.Constraint("Equal", 4, 1),
    Sketcher.Constraint("DistanceX", 2, 2, 2, 1, 10.0),
    Sketcher.Constraint("DistanceY", 3, 2, 0, 2, 340.0),
    Sketcher.Constraint("DistanceY", -1, 1, 0, 2, 217.1),
    Sketcher.Constraint("DistanceX", -1, 1, 0, 2, 77.24),
])
pocket8 = body.newObject("PartDesign::Pocket", "Pocket007")
pocket8.Profile = sketch22
pocket8.Length = 56.2

sketch23 = body.newObject("Sketcher::SketchObject", "Sketch022")
sketch23.AttachmentSupport = (doc.getObject("XY_Plane"), [""])
sketch23.MapMode = "FlatFace"
sketch23.AttachmentOffset = App.Placement(Vector(0, 0, 80.2), App.Rotation())
sketch23.addGeometry([
    Part.LineSegment(Vector(77, -145, 0), Vector(67, -155, 0)),
    Part.LineSegment(Vector(67, -155, 0), Vector(77, -155, 0)),
    Part.LineSegment(Vector(77, -155, 0), Vector(77, -145, 0)),
    Part.LineSegment(Vector(67, 155, 0), Vector(77, 145, 0)),
    Part.LineSegment(Vector(77, 145, 0), Vector(77, 155, 0)),
    Part.LineSegment(Vector(77, 155, 0), Vector(67, 155, 0)),
], False)
sketch23.addConstraint([
    Sketcher.Constraint("Coincident", 0, 2, 1, 1),
    Sketcher.Constraint("Coincident", 1, 2, 2, 1),
    Sketcher.Constraint("Coincident", 2, 2, 0, 1),
    Sketcher.Constraint("Coincident", 3, 2, 4, 1),
    Sketcher.Constraint("Coincident", 4, 2, 5, 1),
    Sketcher.Constraint("Coincident", 5, 2, 3, 1),
    Sketcher.Constraint("Horizontal", 1),
    Sketcher.Constraint("Vertical", 2),
    Sketcher.Constraint("Vertical", 4),
    Sketcher.Constraint("Horizontal", 5),
    Sketcher.Constraint("Symmetric", 2, 2, 3, 2, -1),
    Sketcher.Constraint("Symmetric", 0, 2, 5, 2, -1),
    Sketcher.Constraint("Perpendicular", 0, 3),
    Sketcher.Constraint("DistanceX", 1, 1, 1, 2, 10.0),
    Sketcher.Constraint("DistanceY", 0, 2, -1, 1, 155.0),
    Sketcher.Constraint("DistanceX", -1, 1, 0, 2, 67.24),
])
pocket9 = body.newObject("PartDesign::Pocket", "Pocket008")
pocket9.Profile = sketch23
pocket9.Length = 56.2

sketch24 = body.newObject("Sketcher::SketchObject", "Sketch023")
sketch24.AttachmentSupport = (doc.getObject("XZ_Plane"), [""])
sketch24.MapMode = "FlatFace"
sketch24.AttachmentOffset = App.Placement(Vector(0, 0, 145), App.Rotation())
sketch24.addGeometry([
    Part.LineSegment(Vector(47, 44, 0), Vector(47, 60, 0)),
    Part.LineSegment(Vector(47, 60, 0), Vector(68, 60, 0)),
    Part.LineSegment(Vector(68, 60, 0), Vector(68, 44, 0)),
    Part.LineSegment(Vector(68, 44, 0), Vector(47, 44, 0)),
], False)
sketch24.addConstraint([
    Sketcher.Constraint("Coincident", 0, 2, 1, 1),
    Sketcher.Constraint("Coincident", 1, 2, 2, 1),
    Sketcher.Constraint("Coincident", 2, 2, 3, 1),
    Sketcher.Constraint("Coincident", 3, 2, 0, 1),
    Sketcher.Constraint("Vertical", 0),
    Sketcher.Constraint("Horizontal", 1),
    Sketcher.Constraint("Vertical", 2),
    Sketcher.Constraint("Horizontal", 3),
    Sketcher.Constraint("DistanceX", 1, 1, 1, 2, 21.0),
    Sketcher.Constraint("DistanceY", 0, 1, 0, 2, 16.2),
    Sketcher.Constraint("DistanceY", -1, 1, 2, 2, 44.0),
    Sketcher.Constraint("DistanceX", -1, 1, 0, 2, 47.24),
])
pocket10 = body.newObject("PartDesign::Pocket", "Pocket009")
pocket10.Profile = sketch24
pocket10.Length = 5
pocket10.Reversed = True

sketch25 = body.newObject("Sketcher::SketchObject", "Sketch024")
sketch25.AttachmentSupport = (doc.getObject("XZ_Plane"), [""])
sketch25.MapMode = "FlatFace"
sketch25.AttachmentOffset = App.Placement(Vector(0, 0, -145), App.Rotation())
sketch25.addGeometry([
    Part.LineSegment(Vector(68, 44, 0), Vector(68, 60, 0)),
    Part.LineSegment(Vector(68, 60, 0), Vector(47, 60, 0)),
    Part.LineSegment(Vector(47, 60, 0), Vector(47, 44, 0)),
    Part.LineSegment(Vector(47, 44, 0), Vector(68, 44, 0)),
], False)
sketch25.addConstraint([
    Sketcher.Constraint("Coincident", 0, 2, 1, 1),
    Sketcher.Constraint("Coincident", 1, 2, 2, 1),
    Sketcher.Constraint("Coincident", 2, 2, 3, 1),
    Sketcher.Constraint("Coincident", 3, 2, 0, 1),
    Sketcher.Constraint("Vertical", 0),
    Sketcher.Constraint("Horizontal", 1),
    Sketcher.Constraint("Vertical", 2),
    Sketcher.Constraint("Horizontal", 3),
    Sketcher.Constraint("DistanceX", 1, 2, 1, 1, 21.0),
    Sketcher.Constraint("DistanceY", 0, 1, 0, 2, 16.2),
    Sketcher.Constraint("DistanceY", -1, 1, 2, 2, 44.0),
    Sketcher.Constraint("DistanceX", -1, 1, 0, 2, 68.24),
])
pocket11 = body.newObject("PartDesign::Pocket", "Pocket010")
pocket11.Profile = sketch25
pocket11.Length = 5

sketch26 = body.newObject("Sketcher::SketchObject", "Sketch025")
sketch26.AttachmentSupport = (doc.getObject("XY_Plane"), [""])
sketch26.MapMode = "FlatFace"
sketch26.AttachmentOffset = App.Placement(Vector(0, 0, 217.1), App.Rotation())
sketch26.addGeometry([
    Part.LineSegment(Vector(68, 8, 0), Vector(68, -8, 0)),
    Part.LineSegment(Vector(68, -8, 0), Vector(47, -8, 0)),
    Part.LineSegment(Vector(47, -8, 0), Vector(47, 8, 0)),
    Part.LineSegment(Vector(47, 8, 0), Vector(68, 8, 0)),
], False)
sketch26.addConstraint([
    Sketcher.Constraint("Coincident", 0, 2, 1, 1),
    Sketcher.Constraint("Coincident", 1, 2, 2, 1),
    Sketcher.Constraint("Coincident", 2, 2, 3, 1),
    Sketcher.Constraint("Coincident", 3, 2, 0, 1),
    Sketcher.Constraint("Vertical", 0),
    Sketcher.Constraint("Horizontal", 1),
    Sketcher.Constraint("Vertical", 2),
    Sketcher.Constraint("Horizontal", 3),
    Sketcher.Constraint("DistanceX", 1, 2, 1, 1, 21.0),
    Sketcher.Constraint("DistanceY", 0, 2, 0, 1, 16.2),
    Sketcher.Constraint("DistanceY", 0, 2, -1, 1, 8.1),
    Sketcher.Constraint("DistanceX", -1, 1, 0, 2, 68.24),
])
pocket12 = body.newObject("PartDesign::Pocket", "Pocket011")
pocket12.Profile = sketch26
pocket12.Length = 5
pocket12.Reversed = True

sketch27 = body.newObject("Sketcher::SketchObject", "Sketch026")
sketch27.AttachmentSupport = (doc.getObject("XY_Plane"), [""])
sketch27.MapMode = "FlatFace"
sketch27.AttachmentOffset = App.Placement(Vector(0, 0, -112.9), App.Rotation())
sketch27.addGeometry([
    Part.LineSegment(Vector(47, 8, 0), Vector(47, -8, 0)),
    Part.LineSegment(Vector(47, -8, 0), Vector(68, -8, 0)),
    Part.LineSegment(Vector(68, -8, 0), Vector(68, 8, 0)),
    Part.LineSegment(Vector(68, 8, 0), Vector(47, 8, 0)),
], False)
sketch27.addConstraint([
    Sketcher.Constraint("Coincident", 0, 2, 1, 1),
    Sketcher.Constraint("Coincident", 1, 2, 2, 1),
    Sketcher.Constraint("Coincident", 2, 2, 3, 1),
    Sketcher.Constraint("Coincident", 3, 2, 0, 1),
    Sketcher.Constraint("Vertical", 0),
    Sketcher.Constraint("Horizontal", 1),
    Sketcher.Constraint("Vertical", 2),
    Sketcher.Constraint("Horizontal", 3),
    Sketcher.Constraint("DistanceX", 1, 1, 1, 2, 21.0),
    Sketcher.Constraint("DistanceY", 0, 2, 0, 1, 16.2),
    Sketcher.Constraint("DistanceY", 0, 2, -1, 1, 8.1),
    Sketcher.Constraint("DistanceX", -1, 1, 0, 2, 47.24),
])
pocket13 = body.newObject("PartDesign::Pocket", "Pocket012")
pocket13.Profile = sketch27
pocket13.Length = 5

sketch28 = body.newObject("Sketcher::SketchObject", "Sketch027")
sketch28.Placement = App.Placement(Vector(147.17, 0, 147.17), App.Rotation(Vector(0.707106781, 0, -0.707106781), Vector(0, 0.999999999, 0), Vector(0.707106781, 0, 0.707106781), "ZXY"))
sketch28.addGeometry([
    Part.Circle(Vector(-106, 4, 0), Vector(0, 0, 1), 2.6),
    Part.Circle(Vector(-106, -4, 0), Vector(0, 0, 1), 2.6),
], False)
sketch28.addConstraint([
    Sketcher.Constraint("Equal", 0, 1),
    Sketcher.Constraint("Symmetric", 0, 3, 1, 3, -1),
    Sketcher.Constraint("Diameter", 0, 5.3),
    Sketcher.Constraint("DistanceY", 1, 3, 0, 3, 8.1),
    Sketcher.Constraint("DistanceX", 0, 3, -1, 1, 105.967022),
])
pocket14 = body.newObject("PartDesign::Pocket", "Pocket013")
pocket14.Profile = sketch28
pocket14.Length = 2.4

sketch29 = body.newObject("Sketcher::SketchObject", "Sketch028")
sketch29.Placement = App.Placement(Vector(145.472944, 0, 145.472944), App.Rotation(Vector(0.707106781, 0, -0.707106781), Vector(0, 0.999999999, 0), Vector(0.707106781, 0, 0.707106781), "ZXY"))
sketch29.addGeometry([
    Part.Circle(Vector(-106, 5.7, 0), Vector(0, 0, 1), 0.5),
    Part.Circle(Vector(-106, 2.3, 0), Vector(0, 0, 1), 0.5),
    Part.Circle(Vector(-106, -2.3, 0), Vector(0, 0, 1), 0.5),
    Part.Circle(Vector(-106, -5.7, 0), Vector(0, 0, 1), 0.5),
], False)
sketch29.addConstraint([
    Sketcher.Constraint("Equal", 0, 1),
    Sketcher.Constraint("Equal", 1, 2),
    Sketcher.Constraint("Equal", 2, 3),
    Sketcher.Constraint("Symmetric", 1, 3, 2, 3, -1),
    Sketcher.Constraint("Symmetric", 0, 3, 3, 3, -1),
    Sketcher.Constraint("Vertical", 0, 3, 1, 3),
    Sketcher.Constraint("Diameter", 0, 1.0),
    Sketcher.Constraint("DistanceY", 1, 3, 0, 3, 3.4),
    Sketcher.Constraint("DistanceY", 2, 3, 1, 3, 4.7),
    Sketcher.Constraint("DistanceX", 0, 3, -1, 1, 105.967022),
])
pocket15 = body.newObject("PartDesign::Pocket", "Pocket014")
pocket15.Profile = sketch29
pocket15.Length = 10

sketch30 = body.newObject("Sketcher::SketchObject", "Sketch029")
sketch30.Placement = App.Placement(Vector(95.07, 0, -95.07), App.Rotation(Vector(-0.707106781, 0, -0.707106781), Vector(0, 0.999999999, 0), Vector(0.707106781, 0, -0.707106781), "ZXY"))
sketch30.addGeometry([
    Part.Circle(Vector(32.3, -4, 0), Vector(0, 0, 1), 2.6),
    Part.Circle(Vector(32.3, 4, 0), Vector(0, 0, 1), 2.6),
], False)
sketch30.addConstraint([
    Sketcher.Constraint("Equal", 0, 1),
    Sketcher.Constraint("Symmetric", 0, 3, 1, 3, -1),
    Sketcher.Constraint("Diameter", 0, 5.3),
    Sketcher.Constraint("DistanceY", 0, 3, 1, 3, 8.1),
    Sketcher.Constraint("DistanceX", -1, 1, 0, 3, 32.286496),
])
pocket16 = body.newObject("PartDesign::Pocket", "Pocket015")
pocket16.Profile = sketch30
pocket16.Length = 2.4

sketch31 = body.newObject("Sketcher::SketchObject", "Sketch030")
sketch31.Placement = App.Placement(Vector(93.372944, 0, -93.372944), App.Rotation(Vector(-0.707106781, 0, -0.707106781), Vector(0, 0.999999999, 0), Vector(0.707106781, 0, -0.707106781), "ZXY"))
sketch31.addGeometry([
    Part.Circle(Vector(32.3, -5.7, 0), Vector(0, 0, 1), 0.5),
    Part.Circle(Vector(32.3, -2.3, 0), Vector(0, 0, 1), 0.5),
    Part.Circle(Vector(32.3, 2.3, 0), Vector(0, 0, 1), 0.5),
    Part.Circle(Vector(32.3, 5.7, 0), Vector(0, 0, 1), 0.5),
], False)
sketch31.addConstraint([
    Sketcher.Constraint("Equal", 0, 1),
    Sketcher.Constraint("Equal", 1, 2),
    Sketcher.Constraint("Equal", 2, 3),
    Sketcher.Constraint("Symmetric", 1, 3, 2, 3, -1),
    Sketcher.Constraint("Symmetric", 0, 3, 3, 3, -1),
    Sketcher.Constraint("Vertical", 0, 3, 1, 3),
    Sketcher.Constraint("Diameter", 0, 1.0),
    Sketcher.Constraint("DistanceY", 0, 3, 1, 3, 3.4),
    Sketcher.Constraint("DistanceY", 1, 3, 2, 3, 4.7),
    Sketcher.Constraint("DistanceX", -1, 1, 0, 3, 32.286496),
])
pocket17 = body.newObject("PartDesign::Pocket", "Pocket016")
pocket17.Profile = sketch31
pocket17.Length = 10

sketch32 = body.newObject("Sketcher::SketchObject", "Sketch031")
sketch32.Placement = App.Placement(Vector(111.12, -111.12, 0), App.Rotation(Vector(0, 0, -1), Vector(0.707106781, 0.707106781, 0), Vector(0.707106781, -0.707106781, 0), "ZXY"))
sketch32.addGeometry([
    Part.Circle(Vector(-56.1, -55, 0), Vector(0, 0, 1), 2.6),
    Part.Circle(Vector(-48, -55, 0), Vector(0, 0, 1), 2.6),
], False)
sketch32.addConstraint([
    Sketcher.Constraint("Equal", 0, 1),
    Sketcher.Constraint("Horizontal", 0, 3, 1, 3),
    Sketcher.Constraint("Diameter", 0, 5.3),
    Sketcher.Constraint("DistanceX", 0, 3, 1, 3, 8.1),
    Sketcher.Constraint("DistanceX", 0, 3, -1, 1, 56.15),
    Sketcher.Constraint("DistanceY", 0, 3, -1, 1, 54.984623),
])
pocket18 = body.newObject("PartDesign::Pocket", "Pocket017")
pocket18.Profile = sketch32
pocket18.Length = 2.4

sketch33 = body.newObject("Sketcher::SketchObject", "Sketch032")
sketch33.Placement = App.Placement(Vector(109.422944, -109.422944, 0), App.Rotation(Vector(0, 0, -1), Vector(0.707106781, 0.707106781, 0), Vector(0.707106781, -0.707106781, 0), "ZXY"))
sketch33.addGeometry([
    Part.Circle(Vector(-57.9, -55, 0), Vector(0, 0, 1), 0.5),
    Part.Circle(Vector(-54.5, -55, 0), Vector(0, 0, 1), 0.5),
    Part.Circle(Vector(-49.8, -55, 0), Vector(0, 0, 1), 0.5),
    Part.Circle(Vector(-46.4, -55, 0), Vector(0, 0, 1), 0.5),
], False)
sketch33.addConstraint([
    Sketcher.Constraint("Equal", 0, 1),
    Sketcher.Constraint("Equal", 1, 2),
    Sketcher.Constraint("Equal", 2, 3),
    Sketcher.Constraint("Horizontal", 0, 3, 1, 3),
    Sketcher.Constraint("Horizontal", 1, 3, 2, 3),
    Sketcher.Constraint("Horizontal", 2, 3, 3, 3),
    Sketcher.Constraint("Diameter", 0, 1.0),
    Sketcher.Constraint("DistanceX", 0, 3, 1, 3, 3.4),
    Sketcher.Constraint("DistanceX", 1, 3, 2, 3, 4.7),
    Sketcher.Constraint("DistanceX", 2, 3, 3, 3, 3.4),
    Sketcher.Constraint("DistanceX", 0, 3, -1, 1, 57.85),
    Sketcher.Constraint("DistanceY", 0, 3, -1, 1, 54.984623),
])
pocket19 = body.newObject("PartDesign::Pocket", "Pocket018")
pocket19.Profile = sketch33
pocket19.Length = 10

sketch34 = body.newObject("Sketcher::SketchObject", "Sketch033")
sketch34.Placement = App.Placement(Vector(111.12, 111.12, 0), App.Rotation(Vector(0.707106781, -0.707106781, 0), Vector(0, 0, -0.999999999), Vector(0.707106781, 0.707106781, 0), "ZXY"))
sketch34.addGeometry([
    Part.Circle(Vector(-55, -48, 0), Vector(0, 0, 1), 2.6),
    Part.Circle(Vector(-55, -56.1, 0), Vector(0, 0, 1), 2.6),
], False)
sketch34.addConstraint([
    Sketcher.Constraint("Equal", 0, 1),
    Sketcher.Constraint("Vertical", 0, 3, 1, 3),
    Sketcher.Constraint("Diameter", 0, 5.3),
    Sketcher.Constraint("DistanceY", 1, 3, 0, 3, 8.1),
    Sketcher.Constraint("DistanceY", 0, 3, -1, 1, 48.05),
    Sketcher.Constraint("DistanceX", 0, 3, -1, 1, 54.984623),
])
pocket20 = body.newObject("PartDesign::Pocket", "Pocket019")
pocket20.Profile = sketch34
pocket20.Length = 2.4

sketch35 = body.newObject("Sketcher::SketchObject", "Sketch034")
sketch35.Placement = App.Placement(Vector(109.422944, 109.422944, 0), App.Rotation(Vector(0.707106781, -0.707106781, 0), Vector(0, 0, -0.999999999), Vector(0.707106781, 0.707106781, 0), "ZXY"))
sketch35.addGeometry([
    Part.Circle(Vector(-55, -46.3, 0), Vector(0, 0, 1), 0.5),
    Part.Circle(Vector(-55, -49.7, 0), Vector(0, 0, 1), 0.5),
    Part.Circle(Vector(-55, -54.4, 0), Vector(0, 0, 1), 0.5),
    Part.Circle(Vector(-55, -57.8, 0), Vector(0, 0, 1), 0.5),
], False)
sketch35.addConstraint([
    Sketcher.Constraint("Equal", 0, 1),
    Sketcher.Constraint("Equal", 1, 2),
    Sketcher.Constraint("Equal", 2, 3),
    Sketcher.Constraint("Vertical", 0, 3, 1, 3),
    Sketcher.Constraint("Vertical", 1, 3, 2, 3),
    Sketcher.Constraint("Vertical", 2, 3, 3, 3),
    Sketcher.Constraint("Diameter", 0, 1.0),
    Sketcher.Constraint("DistanceY", 1, 3, 0, 3, 3.4),
    Sketcher.Constraint("DistanceY", 2, 3, 1, 3, 4.7),
    Sketcher.Constraint("DistanceY", 3, 3, 2, 3, 3.4),
    Sketcher.Constraint("DistanceY", 0, 3, -1, 1, 46.35),
    Sketcher.Constraint("DistanceX", 0, 3, -1, 1, 54.984623),
])
pocket21 = body.newObject("PartDesign::Pocket", "Pocket020")
pocket21.Profile = sketch35
pocket21.Length = 10

sketch36 = body.newObject("Sketcher::SketchObject", "Sketch035")
sketch36.AttachmentSupport = (doc.getObject("XY_Plane"), [""])
sketch36.MapMode = "FlatFace"
sketch36.addGeometry([
    Part.Circle(Vector(0, 18.8, 0), Vector(0, 0, 1), 3.8),
    Part.Circle(Vector(18.8, 0, 0), Vector(0, 0, 1), 3.8),
], False)
sketch36.addConstraint([
    Sketcher.Constraint("Equal", 0, 1),
    Sketcher.Constraint("PointOnObject", 0, 3, -2),
    Sketcher.Constraint("PointOnObject", 1, 3, -1),
    Sketcher.Constraint("Diameter", 0, 7.5),
    Sketcher.Constraint("DistanceY", -1, 1, 0, 3, 18.75),
    Sketcher.Constraint("DistanceX", -1, 1, 1, 3, 18.75),
])
pocket22 = body.newObject("PartDesign::Pocket", "Pocket021")
pocket22.Profile = sketch36
pocket22.Length = 30
pocket22.Reversed = True

doc.recompute()
